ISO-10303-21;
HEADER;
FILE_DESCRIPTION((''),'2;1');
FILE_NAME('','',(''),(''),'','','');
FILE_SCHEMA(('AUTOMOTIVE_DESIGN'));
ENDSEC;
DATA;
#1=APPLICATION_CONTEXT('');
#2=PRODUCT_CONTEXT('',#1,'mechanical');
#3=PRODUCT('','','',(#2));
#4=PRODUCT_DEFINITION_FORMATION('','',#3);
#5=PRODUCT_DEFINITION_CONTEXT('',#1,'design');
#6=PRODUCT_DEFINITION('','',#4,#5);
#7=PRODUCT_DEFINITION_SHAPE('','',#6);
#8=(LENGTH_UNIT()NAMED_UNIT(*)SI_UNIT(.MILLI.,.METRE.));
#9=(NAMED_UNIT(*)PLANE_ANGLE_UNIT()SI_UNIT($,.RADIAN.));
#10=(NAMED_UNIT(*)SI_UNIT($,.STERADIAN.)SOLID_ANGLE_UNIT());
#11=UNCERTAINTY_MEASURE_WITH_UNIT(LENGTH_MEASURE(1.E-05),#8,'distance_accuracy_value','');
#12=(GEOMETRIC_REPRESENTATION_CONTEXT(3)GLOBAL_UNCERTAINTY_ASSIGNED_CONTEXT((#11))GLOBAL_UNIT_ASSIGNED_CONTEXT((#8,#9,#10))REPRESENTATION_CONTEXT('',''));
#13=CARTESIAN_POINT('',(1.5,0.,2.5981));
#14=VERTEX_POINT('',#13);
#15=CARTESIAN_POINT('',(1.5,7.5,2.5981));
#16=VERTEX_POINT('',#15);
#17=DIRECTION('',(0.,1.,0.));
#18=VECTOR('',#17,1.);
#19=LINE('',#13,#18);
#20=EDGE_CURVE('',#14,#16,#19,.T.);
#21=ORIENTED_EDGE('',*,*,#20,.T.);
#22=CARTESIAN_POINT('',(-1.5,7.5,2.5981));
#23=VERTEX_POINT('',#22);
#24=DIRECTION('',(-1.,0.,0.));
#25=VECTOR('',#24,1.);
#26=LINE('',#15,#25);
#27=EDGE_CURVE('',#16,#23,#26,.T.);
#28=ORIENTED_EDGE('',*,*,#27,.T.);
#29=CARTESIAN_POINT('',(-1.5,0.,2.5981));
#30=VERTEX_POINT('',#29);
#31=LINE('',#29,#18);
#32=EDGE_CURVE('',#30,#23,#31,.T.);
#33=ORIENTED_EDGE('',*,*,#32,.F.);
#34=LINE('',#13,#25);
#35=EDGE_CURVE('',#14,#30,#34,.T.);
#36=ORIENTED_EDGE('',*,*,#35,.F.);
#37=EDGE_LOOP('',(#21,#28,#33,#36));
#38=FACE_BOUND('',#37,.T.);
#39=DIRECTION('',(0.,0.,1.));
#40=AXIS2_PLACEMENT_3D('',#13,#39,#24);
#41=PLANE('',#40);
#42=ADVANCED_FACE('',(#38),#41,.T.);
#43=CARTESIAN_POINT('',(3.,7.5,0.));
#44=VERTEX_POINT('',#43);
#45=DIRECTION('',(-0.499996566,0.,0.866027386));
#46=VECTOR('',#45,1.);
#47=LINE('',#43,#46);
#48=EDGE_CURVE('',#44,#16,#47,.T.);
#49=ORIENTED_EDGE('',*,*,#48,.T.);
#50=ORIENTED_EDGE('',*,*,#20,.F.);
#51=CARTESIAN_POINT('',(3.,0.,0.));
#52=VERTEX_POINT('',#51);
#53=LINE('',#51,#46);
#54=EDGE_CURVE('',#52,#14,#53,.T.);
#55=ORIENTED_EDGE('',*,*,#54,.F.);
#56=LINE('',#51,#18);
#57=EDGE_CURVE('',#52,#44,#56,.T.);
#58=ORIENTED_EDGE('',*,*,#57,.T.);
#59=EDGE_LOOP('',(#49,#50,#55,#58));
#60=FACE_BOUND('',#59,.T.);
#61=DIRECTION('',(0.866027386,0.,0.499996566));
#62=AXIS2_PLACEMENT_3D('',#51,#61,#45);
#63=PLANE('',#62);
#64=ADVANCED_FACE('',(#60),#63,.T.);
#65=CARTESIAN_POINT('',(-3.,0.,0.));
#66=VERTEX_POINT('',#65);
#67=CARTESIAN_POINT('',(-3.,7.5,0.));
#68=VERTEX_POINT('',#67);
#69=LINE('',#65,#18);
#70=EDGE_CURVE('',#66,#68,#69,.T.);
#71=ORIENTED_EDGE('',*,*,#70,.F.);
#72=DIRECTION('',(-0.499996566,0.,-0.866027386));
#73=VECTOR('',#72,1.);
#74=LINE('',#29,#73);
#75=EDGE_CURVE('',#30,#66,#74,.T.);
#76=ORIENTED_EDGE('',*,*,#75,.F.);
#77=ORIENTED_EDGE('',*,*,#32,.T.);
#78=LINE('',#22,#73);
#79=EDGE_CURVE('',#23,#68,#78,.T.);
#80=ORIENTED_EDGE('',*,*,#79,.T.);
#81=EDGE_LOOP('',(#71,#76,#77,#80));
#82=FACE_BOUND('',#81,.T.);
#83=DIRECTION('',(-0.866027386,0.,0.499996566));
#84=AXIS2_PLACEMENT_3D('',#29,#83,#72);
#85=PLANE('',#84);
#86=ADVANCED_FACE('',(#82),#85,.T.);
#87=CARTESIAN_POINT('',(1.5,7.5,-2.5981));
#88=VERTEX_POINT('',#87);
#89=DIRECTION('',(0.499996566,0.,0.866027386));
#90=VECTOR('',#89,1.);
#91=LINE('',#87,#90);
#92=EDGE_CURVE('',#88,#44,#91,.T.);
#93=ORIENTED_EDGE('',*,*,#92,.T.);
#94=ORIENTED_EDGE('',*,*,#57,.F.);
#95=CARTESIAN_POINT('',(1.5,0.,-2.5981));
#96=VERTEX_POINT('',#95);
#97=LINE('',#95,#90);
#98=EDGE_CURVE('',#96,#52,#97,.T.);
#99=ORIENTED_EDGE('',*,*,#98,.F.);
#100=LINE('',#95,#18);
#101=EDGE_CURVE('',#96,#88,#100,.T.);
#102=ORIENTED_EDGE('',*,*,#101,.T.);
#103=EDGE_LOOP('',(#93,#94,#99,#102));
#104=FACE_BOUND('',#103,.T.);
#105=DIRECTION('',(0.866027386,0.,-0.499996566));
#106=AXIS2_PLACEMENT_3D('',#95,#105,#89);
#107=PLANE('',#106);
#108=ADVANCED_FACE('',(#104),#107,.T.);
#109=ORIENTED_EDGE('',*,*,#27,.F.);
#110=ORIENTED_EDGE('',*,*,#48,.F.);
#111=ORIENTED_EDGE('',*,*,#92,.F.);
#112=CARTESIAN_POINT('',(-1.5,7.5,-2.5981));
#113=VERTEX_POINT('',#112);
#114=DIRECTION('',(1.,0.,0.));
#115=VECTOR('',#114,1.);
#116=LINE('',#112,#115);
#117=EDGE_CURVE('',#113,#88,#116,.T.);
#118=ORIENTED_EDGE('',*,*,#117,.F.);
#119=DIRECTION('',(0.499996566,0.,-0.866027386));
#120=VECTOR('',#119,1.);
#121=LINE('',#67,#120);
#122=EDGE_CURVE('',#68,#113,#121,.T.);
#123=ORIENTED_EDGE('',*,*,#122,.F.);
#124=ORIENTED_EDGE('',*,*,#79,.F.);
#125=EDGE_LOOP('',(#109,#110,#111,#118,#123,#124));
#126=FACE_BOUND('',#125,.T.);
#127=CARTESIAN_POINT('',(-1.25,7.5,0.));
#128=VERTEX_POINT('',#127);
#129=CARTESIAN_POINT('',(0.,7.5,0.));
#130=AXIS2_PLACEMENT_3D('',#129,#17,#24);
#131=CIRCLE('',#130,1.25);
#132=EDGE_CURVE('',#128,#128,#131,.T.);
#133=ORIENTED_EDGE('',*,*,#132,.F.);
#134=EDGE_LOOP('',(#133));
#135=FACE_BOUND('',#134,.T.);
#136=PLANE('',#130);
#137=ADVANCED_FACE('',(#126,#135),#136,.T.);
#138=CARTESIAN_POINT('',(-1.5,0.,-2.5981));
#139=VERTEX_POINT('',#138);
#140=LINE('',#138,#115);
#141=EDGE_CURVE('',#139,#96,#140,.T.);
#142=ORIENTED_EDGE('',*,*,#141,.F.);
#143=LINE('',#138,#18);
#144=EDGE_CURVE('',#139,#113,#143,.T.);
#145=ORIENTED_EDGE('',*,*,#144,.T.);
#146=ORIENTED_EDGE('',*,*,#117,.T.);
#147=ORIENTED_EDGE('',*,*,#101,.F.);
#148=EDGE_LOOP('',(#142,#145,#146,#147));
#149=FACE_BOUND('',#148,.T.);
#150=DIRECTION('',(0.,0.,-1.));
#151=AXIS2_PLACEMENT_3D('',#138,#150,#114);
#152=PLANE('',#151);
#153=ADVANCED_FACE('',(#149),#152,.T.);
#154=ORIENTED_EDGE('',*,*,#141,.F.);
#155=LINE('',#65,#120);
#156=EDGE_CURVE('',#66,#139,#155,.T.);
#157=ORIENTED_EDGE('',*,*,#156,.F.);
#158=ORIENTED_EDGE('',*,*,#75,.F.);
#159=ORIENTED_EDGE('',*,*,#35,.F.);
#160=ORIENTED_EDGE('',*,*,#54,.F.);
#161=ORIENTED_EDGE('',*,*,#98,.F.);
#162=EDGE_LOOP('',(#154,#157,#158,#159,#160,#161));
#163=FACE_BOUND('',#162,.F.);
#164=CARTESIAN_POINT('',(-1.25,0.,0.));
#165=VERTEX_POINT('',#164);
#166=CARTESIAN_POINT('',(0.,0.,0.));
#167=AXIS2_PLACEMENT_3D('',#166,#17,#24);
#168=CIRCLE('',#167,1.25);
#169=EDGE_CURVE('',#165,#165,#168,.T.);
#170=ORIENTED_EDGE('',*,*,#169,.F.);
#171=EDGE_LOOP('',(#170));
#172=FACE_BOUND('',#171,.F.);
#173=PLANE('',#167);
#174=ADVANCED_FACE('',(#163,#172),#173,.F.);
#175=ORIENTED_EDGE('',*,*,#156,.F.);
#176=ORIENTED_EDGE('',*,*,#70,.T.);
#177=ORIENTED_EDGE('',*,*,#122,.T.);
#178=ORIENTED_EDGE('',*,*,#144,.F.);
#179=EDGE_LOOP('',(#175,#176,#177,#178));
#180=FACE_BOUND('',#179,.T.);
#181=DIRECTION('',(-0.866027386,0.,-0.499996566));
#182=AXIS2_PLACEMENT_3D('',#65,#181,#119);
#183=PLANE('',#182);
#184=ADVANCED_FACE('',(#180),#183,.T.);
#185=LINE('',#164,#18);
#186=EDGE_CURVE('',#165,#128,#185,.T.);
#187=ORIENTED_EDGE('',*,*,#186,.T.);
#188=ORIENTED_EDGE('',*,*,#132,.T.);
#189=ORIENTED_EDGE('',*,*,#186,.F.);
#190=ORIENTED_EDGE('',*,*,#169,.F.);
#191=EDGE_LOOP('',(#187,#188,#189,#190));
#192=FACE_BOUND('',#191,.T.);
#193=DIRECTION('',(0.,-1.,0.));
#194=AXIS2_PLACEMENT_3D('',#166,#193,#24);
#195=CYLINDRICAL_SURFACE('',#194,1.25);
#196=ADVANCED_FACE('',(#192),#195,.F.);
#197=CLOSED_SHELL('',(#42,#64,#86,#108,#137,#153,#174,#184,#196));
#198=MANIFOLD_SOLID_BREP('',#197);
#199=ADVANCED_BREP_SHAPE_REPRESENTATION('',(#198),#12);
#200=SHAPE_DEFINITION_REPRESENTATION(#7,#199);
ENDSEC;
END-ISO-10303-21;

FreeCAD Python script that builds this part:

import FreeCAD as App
import Part
import Sketcher

V = App.Vector
Q = App.Units.Quantity


def add_polygon(sketch, points):
    """Adds a closed chain of lines whose ends are joined by coincident constraints."""
    first, n = sketch.GeometryCount, len(points)
    for a, b in zip(points, points[1:] + points[:1]):
        sketch.addGeometry(Part.LineSegment(App.Vector(*a, 0), App.Vector(*b, 0)), False)
    for i in range(n):
        sketch.addConstraint(Sketcher.Constraint("Coincident", first + i, 2, first + (i + 1) % n, 1))

doc = App.newDocument("Part")
body = doc.addObject("PartDesign::Body", "Body")

sketch1 = body.newObject("Sketcher::SketchObject", "Sketch")
sketch1.AttachmentSupport = (doc.getObject("XZ_Plane"), [""])
sketch1.MapMode = "FlatFace"
add_polygon(sketch1, [(-1.5, -2.6), (-3, 0), (-1.5, 2.6), (1.5, 2.6), (3, 0), (1.5, -2.6)])
sketch1.addGeometry(Part.Circle(V(0, 0, 0), V(0, 0, 1), 1.2), False)
sketch1.addConstraint([
    Sketcher.Constraint("Horizontal", 2),
    Sketcher.Constraint("Horizontal", 5),
    Sketcher.Constraint("Coincident", 6, 3, -1, 1),
    Sketcher.Constraint("Symmetric", 0, 2, 3, 2, -1, 1),
    Sketcher.Constraint("Symmetric", 1, 2, 4, 2, -1, 1),
    Sketcher.Constraint("PointOnObject", 0, 2, -1),
    Sketcher.Constraint("Parallel", 0, 3),
    Sketcher.Constraint("Vertical", 2, 2, 4, 2),
    Sketcher.Constraint("Diameter", 6, Q("2.5 mm")),
    Sketcher.Constraint("DistanceX", 2, 1, 2, 2, Q("3 mm")),
    Sketcher.Constraint("Distance", 0, Q("3 mm")),
    Sketcher.Constraint("DistanceX", 0, 2, -1, 1, Q("3 mm")),
])
pad1 = body.newObject("PartDesign::Pad", "Pad")
pad1.Profile = sketch1
pad1.Length = 7.5
pad1.Reversed = True

doc.recompute()
